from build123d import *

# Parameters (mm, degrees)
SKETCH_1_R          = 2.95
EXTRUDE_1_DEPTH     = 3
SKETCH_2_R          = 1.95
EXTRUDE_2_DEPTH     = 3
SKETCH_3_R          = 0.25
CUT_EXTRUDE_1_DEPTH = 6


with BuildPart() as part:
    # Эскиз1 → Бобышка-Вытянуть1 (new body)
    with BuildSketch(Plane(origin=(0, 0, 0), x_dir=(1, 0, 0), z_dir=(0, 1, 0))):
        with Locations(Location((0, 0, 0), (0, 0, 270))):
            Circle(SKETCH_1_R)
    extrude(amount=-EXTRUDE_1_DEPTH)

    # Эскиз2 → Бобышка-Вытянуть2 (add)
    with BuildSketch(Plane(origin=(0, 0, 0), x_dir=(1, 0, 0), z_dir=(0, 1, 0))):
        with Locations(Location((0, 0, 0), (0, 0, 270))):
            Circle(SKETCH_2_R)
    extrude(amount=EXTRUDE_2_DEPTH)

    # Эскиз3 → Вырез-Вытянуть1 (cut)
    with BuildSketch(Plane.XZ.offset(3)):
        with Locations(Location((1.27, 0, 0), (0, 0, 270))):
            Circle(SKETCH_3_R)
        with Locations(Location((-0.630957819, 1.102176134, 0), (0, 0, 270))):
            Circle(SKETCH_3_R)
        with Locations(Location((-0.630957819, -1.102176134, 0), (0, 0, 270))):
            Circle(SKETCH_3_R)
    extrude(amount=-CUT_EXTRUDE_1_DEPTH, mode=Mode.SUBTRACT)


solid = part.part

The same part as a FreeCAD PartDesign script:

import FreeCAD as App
import Part
import Sketcher
Q = App.Units.Quantity

doc = App.newDocument("Part")
body = doc.addObject("PartDesign::Body", "Body")

sketch1 = doc.addObject("Sketcher::SketchObject", "Sketch")
body.addObject(sketch1)
sketch1.AttachmentSupport = (doc.XZ_Plane, [""])
sketch1.MapMode = "FlatFace"
sketch1.addGeometry(Part.Circle(App.Vector(0, 0, 0), App.Vector(0, 0, 1), 3), False)
sketch1.addConstraint([
    Sketcher.Constraint("Coincident", 0, 3, -1, 1),
    Sketcher.Constraint("Diameter", 0, Q("5.9 mm")),
])
pad1 = doc.addObject("PartDesign::Pad", "Pad")
body.addObject(pad1)
pad1.Profile = sketch1
pad1.Length = 3

sketch2 = doc.addObject("Sketcher::SketchObject", "Sketch001")
body.addObject(sketch2)
sketch2.AttachmentSupport = (doc.XZ_Plane, [""])
sketch2.MapMode = "FlatFace"
sketch2.addGeometry(Part.Circle(App.Vector(0, 0, 0), App.Vector(0, 0, 1), 1.9), False)
sketch2.addConstraint([
    Sketcher.Constraint("Coincident", 0, 3, -1, 1),
    Sketcher.Constraint("Diameter", 0, Q("3.9 mm")),
])
pad2 = doc.addObject("PartDesign::Pad", "Pad001")
body.addObject(pad2)
pad2.Profile = sketch2
pad2.Length = 3
pad2.Reversed = True

sketch3 = doc.addObject("Sketcher::SketchObject", "Sketch002")
body.addObject(sketch3)
sketch3.AttachmentSupport = (doc.XZ_Plane, [""])
sketch3.MapMode = "FlatFace"
sketch3.AttachmentOffset = App.Placement(App.Vector(0, 0, 3), App.Rotation())
sketch3.addGeometry([
    Part.Circle(App.Vector(1.27, 0, 0), App.Vector(0, 0, 1), 0.25),
    Part.Circle(App.Vector(-0.63, 1.1, 0), App.Vector(0, 0, 1), 0.25),
    Part.Circle(App.Vector(-0.63, -1.1, 0), App.Vector(0, 0, 1), 0.25),
], False)
sketch3.addConstraint([
    Sketcher.Constraint("Equal", 0, 1),
    Sketcher.Constraint("Equal", 1, 2),
    Sketcher.Constraint("Symmetric", 1, 3, 2, 3, -1),
    Sketcher.Constraint("PointOnObject", 0, 3, -1),
    Sketcher.Constraint("Diameter", 0, Q("0.5 mm")),
    Sketcher.Constraint("DistanceX", -1, 1, 0, 3, Q("1.27 mm")),
    Sketcher.Constraint("DistanceX", 1, 3, -1, 1, Q("0.630958 mm")),
    Sketcher.Constraint("DistanceY", -1, 1, 1, 3, Q("1.102176 mm")),
])
pocket1 = doc.addObject("PartDesign::Pocket", "Pocket")
body.addObject(pocket1)
pocket1.Profile = sketch3
pocket1.Length = 6

doc.recompute()
